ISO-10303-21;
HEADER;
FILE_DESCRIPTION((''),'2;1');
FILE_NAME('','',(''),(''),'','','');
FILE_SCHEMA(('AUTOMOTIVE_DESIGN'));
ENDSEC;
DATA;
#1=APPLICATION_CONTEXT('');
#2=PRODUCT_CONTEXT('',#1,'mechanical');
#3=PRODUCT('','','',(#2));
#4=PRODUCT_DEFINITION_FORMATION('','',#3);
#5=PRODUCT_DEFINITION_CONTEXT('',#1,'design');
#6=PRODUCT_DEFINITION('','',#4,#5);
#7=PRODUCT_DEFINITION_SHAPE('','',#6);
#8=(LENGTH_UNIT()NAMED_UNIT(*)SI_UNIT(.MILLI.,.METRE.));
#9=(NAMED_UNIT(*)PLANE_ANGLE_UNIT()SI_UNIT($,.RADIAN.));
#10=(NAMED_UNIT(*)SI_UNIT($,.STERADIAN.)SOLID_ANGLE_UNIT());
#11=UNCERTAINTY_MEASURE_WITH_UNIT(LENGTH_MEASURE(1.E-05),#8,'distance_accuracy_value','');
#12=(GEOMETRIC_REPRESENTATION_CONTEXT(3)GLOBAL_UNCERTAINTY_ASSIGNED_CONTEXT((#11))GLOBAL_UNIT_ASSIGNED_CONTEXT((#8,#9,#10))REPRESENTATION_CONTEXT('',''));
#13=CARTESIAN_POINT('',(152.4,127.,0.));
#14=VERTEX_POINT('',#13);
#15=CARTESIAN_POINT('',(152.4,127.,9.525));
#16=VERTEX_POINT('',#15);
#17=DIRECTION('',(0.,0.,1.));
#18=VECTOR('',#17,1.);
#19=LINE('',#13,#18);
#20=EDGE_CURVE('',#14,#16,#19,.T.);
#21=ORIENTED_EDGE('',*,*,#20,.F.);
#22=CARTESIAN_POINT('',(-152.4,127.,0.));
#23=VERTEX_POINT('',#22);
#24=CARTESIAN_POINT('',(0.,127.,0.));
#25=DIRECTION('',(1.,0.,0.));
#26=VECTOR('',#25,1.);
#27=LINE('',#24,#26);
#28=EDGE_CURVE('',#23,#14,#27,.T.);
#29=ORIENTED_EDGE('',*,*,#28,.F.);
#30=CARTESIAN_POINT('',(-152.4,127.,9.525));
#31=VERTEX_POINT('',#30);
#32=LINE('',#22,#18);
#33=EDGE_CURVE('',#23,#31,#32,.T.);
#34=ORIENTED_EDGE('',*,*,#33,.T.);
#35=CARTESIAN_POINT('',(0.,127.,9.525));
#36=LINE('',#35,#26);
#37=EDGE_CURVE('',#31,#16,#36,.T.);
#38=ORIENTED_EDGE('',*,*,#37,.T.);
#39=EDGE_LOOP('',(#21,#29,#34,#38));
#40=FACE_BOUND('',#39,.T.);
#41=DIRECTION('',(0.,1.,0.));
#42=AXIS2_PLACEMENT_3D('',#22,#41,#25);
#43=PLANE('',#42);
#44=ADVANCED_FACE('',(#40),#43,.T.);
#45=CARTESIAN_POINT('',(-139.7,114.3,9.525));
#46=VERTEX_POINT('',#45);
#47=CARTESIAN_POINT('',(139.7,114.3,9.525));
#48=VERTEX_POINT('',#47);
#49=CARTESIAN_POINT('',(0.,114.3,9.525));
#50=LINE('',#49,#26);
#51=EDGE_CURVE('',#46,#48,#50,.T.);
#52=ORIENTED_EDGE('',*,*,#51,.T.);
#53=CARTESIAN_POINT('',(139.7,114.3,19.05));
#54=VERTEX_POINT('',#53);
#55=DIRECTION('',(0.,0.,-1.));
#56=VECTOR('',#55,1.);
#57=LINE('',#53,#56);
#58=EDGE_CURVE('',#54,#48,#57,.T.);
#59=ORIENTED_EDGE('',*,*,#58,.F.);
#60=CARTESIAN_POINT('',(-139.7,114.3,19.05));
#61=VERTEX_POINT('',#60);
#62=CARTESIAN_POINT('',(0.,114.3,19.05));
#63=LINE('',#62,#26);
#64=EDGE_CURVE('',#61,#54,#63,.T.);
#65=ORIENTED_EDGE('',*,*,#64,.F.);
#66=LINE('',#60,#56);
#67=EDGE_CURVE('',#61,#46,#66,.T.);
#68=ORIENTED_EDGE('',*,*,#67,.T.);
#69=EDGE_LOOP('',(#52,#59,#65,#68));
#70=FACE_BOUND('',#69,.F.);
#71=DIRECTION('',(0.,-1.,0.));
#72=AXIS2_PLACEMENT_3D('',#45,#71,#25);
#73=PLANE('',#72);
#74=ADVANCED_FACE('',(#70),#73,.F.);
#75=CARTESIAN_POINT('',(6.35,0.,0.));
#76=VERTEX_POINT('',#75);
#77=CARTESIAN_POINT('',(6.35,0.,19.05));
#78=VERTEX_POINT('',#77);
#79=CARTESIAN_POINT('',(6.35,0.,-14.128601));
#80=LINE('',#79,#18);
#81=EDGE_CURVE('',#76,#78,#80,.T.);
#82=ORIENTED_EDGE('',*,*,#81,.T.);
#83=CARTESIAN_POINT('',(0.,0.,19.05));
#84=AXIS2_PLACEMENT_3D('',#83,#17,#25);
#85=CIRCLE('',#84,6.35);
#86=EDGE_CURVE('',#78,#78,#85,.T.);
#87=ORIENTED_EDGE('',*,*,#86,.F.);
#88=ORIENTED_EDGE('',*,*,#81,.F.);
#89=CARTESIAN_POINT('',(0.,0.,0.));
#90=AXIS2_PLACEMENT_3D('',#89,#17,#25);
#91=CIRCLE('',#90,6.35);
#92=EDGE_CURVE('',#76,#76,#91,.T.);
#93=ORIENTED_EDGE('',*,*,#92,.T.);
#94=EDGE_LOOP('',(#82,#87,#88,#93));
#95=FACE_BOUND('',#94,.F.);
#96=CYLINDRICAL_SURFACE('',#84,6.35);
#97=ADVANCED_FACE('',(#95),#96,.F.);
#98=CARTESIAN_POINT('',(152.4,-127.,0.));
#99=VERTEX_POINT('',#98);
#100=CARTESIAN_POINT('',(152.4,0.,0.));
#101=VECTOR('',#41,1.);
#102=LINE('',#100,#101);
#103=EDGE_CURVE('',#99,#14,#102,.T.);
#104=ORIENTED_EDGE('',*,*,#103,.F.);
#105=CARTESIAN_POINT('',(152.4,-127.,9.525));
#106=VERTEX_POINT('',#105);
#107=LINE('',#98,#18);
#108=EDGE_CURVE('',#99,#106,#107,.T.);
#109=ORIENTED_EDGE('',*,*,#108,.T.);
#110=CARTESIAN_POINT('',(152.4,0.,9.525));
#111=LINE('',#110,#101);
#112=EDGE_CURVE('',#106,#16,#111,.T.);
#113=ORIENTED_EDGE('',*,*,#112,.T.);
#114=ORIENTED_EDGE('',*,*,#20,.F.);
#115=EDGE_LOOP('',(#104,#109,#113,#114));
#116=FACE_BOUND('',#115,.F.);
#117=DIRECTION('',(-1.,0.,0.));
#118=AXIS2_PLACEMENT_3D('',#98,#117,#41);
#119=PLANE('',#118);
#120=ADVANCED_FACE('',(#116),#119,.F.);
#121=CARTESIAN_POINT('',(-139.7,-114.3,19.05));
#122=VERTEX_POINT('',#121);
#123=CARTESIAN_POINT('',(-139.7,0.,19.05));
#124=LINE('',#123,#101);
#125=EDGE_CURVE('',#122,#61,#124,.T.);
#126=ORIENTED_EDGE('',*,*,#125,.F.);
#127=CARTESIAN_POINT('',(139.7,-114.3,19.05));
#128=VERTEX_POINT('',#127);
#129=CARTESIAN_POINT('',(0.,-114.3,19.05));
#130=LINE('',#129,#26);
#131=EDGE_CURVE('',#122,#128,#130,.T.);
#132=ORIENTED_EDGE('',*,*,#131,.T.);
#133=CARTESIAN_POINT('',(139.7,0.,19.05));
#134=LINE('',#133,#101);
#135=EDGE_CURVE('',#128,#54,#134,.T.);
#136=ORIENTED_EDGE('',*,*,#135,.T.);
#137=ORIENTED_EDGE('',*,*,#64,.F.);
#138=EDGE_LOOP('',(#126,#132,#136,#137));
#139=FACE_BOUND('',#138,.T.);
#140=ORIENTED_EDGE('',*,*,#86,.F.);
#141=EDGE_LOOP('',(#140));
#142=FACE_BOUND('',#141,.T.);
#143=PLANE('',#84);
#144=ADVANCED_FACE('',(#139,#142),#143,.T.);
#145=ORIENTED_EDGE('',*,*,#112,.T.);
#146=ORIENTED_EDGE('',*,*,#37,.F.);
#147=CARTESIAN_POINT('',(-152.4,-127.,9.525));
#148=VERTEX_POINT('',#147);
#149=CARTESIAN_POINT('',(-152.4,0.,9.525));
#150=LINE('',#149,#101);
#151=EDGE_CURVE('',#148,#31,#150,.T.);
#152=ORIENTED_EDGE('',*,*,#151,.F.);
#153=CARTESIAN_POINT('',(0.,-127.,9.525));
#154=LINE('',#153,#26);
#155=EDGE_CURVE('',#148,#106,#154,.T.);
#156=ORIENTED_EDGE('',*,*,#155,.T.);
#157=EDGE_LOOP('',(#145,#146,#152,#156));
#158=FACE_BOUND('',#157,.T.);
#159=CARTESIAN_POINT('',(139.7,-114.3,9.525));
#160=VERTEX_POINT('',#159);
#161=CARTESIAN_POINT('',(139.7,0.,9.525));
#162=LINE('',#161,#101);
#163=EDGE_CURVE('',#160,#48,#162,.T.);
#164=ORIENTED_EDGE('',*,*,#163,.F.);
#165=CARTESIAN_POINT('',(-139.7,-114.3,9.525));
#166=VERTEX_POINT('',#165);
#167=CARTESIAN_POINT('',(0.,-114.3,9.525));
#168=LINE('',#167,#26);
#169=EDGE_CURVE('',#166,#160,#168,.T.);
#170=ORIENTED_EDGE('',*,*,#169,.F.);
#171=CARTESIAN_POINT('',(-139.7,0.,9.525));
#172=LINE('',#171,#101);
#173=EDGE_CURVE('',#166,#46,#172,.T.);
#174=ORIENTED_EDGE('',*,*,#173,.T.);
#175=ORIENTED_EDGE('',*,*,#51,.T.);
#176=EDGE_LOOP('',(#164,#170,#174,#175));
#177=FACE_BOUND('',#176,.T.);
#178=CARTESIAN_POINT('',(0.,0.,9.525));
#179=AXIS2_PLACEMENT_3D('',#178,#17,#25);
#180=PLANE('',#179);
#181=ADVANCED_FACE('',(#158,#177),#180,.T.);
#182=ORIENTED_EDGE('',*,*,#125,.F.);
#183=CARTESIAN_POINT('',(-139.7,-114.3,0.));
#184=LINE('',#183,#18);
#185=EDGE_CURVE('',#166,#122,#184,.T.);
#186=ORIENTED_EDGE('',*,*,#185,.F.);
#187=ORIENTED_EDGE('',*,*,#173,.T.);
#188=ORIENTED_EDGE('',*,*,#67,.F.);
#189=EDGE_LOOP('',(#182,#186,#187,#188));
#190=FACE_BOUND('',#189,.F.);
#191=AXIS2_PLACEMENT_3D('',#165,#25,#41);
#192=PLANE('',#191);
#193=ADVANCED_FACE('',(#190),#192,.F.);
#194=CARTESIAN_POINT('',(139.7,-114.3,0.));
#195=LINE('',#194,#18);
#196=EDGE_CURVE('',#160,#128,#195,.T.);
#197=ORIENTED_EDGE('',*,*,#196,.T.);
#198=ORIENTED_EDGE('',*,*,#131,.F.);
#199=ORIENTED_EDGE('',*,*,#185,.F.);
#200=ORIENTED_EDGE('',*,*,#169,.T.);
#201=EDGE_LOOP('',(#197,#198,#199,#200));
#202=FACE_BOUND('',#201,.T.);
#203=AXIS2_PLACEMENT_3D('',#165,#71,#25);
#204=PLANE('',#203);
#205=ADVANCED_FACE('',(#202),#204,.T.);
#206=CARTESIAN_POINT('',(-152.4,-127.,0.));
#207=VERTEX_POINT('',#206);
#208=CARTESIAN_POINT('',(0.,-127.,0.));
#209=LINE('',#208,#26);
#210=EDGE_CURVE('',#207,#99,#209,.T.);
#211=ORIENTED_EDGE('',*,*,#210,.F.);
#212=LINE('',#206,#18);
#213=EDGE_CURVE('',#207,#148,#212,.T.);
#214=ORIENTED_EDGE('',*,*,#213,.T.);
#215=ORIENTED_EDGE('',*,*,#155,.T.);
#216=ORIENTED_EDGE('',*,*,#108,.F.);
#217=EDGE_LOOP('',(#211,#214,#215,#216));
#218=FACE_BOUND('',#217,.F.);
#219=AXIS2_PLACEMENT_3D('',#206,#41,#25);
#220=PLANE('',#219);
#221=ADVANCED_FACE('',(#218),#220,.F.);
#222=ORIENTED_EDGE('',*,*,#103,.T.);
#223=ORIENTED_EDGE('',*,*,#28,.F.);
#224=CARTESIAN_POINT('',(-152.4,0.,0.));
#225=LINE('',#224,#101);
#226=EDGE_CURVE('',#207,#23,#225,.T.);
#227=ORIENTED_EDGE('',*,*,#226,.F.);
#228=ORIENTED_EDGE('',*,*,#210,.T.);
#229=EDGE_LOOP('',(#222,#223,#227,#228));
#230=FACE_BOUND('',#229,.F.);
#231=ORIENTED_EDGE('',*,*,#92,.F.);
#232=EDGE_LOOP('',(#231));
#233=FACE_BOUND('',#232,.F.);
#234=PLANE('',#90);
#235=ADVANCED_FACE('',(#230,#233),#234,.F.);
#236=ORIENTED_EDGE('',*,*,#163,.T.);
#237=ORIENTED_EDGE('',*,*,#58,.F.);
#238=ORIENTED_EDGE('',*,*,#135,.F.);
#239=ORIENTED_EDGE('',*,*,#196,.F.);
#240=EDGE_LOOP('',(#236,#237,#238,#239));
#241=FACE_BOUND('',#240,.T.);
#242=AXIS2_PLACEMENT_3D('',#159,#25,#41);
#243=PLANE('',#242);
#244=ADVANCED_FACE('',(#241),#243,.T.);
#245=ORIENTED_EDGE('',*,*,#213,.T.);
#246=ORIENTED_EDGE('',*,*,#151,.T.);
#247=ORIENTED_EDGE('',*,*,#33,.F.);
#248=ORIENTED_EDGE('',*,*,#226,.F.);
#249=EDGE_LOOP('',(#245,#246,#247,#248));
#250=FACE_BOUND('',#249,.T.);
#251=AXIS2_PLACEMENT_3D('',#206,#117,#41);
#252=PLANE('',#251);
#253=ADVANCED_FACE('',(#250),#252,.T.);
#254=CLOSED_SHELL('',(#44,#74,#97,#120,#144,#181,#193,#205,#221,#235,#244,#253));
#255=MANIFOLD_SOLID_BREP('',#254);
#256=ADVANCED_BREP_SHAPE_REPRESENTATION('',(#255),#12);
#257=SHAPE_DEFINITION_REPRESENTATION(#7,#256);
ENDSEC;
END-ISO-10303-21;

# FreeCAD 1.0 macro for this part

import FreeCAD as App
import Part
import Sketcher
from FreeCAD import Vector
Q = App.Units.Quantity

doc = App.newDocument("Part")
body = doc.addObject("PartDesign::Body", "Body")

sketch1 = body.newObject("Sketcher::SketchObject", "Sketch")
sketch1.AttachmentSupport = (doc.getObject("XY_Plane"), [""])
sketch1.MapMode = "FlatFace"
sketch1.addGeometry([
    Part.LineSegment(Vector(-152, 127, 0), Vector(-152, -127, 0)),
    Part.LineSegment(Vector(-152, -127, 0), Vector(152, -127, 0)),
    Part.LineSegment(Vector(152, -127, 0), Vector(152, 127, 0)),
    Part.LineSegment(Vector(152, 127, 0), Vector(-152, 127, 0)),
    Part.LineSegment(Vector(140, -114, 0), Vector(-140, -114, 0)),
    Part.LineSegment(Vector(-140, -114, 0), Vector(-140, 114, 0)),
    Part.LineSegment(Vector(-140, 114, 0), Vector(140, 114, 0)),
    Part.LineSegment(Vector(140, 114, 0), Vector(140, -114, 0)),
], False)
sketch1.addConstraint([
    Sketcher.Constraint("Coincident", 0, 2, 1, 1),
    Sketcher.Constraint("Coincident", 1, 2, 2, 1),
    Sketcher.Constraint("Coincident", 2, 2, 3, 1),
    Sketcher.Constraint("Coincident", 3, 2, 0, 1),
    Sketcher.Constraint("Coincident", 4, 2, 5, 1),
    Sketcher.Constraint("Coincident", 5, 2, 6, 1),
    Sketcher.Constraint("Coincident", 6, 2, 7, 1),
    Sketcher.Constraint("Coincident", 7, 2, 4, 1),
    Sketcher.Constraint("Vertical", 0),
    Sketcher.Constraint("Horizontal", 1),
    Sketcher.Constraint("Vertical", 2),
    Sketcher.Constraint("Horizontal", 3),
    Sketcher.Constraint("Horizontal", 4),
    Sketcher.Constraint("Vertical", 5),
    Sketcher.Constraint("Horizontal", 6),
    Sketcher.Constraint("Vertical", 7),
    Sketcher.Constraint("Symmetric", 0, 2, 2, 2, -1, 1),
    Sketcher.Constraint("Symmetric", 4, 2, 6, 2, -1, 1),
    Sketcher.Constraint("DistanceX", 1, 1, 1, 2, Q("12 in")),
    Sketcher.Constraint("DistanceX", 4, 2, 4, 1, Q("11 in")),
    Sketcher.Constraint("DistanceY", 0, 2, 0, 1, Q("10 in")),
    Sketcher.Constraint("DistanceY", 5, 1, 5, 2, Q("9 in")),
])
pad1 = body.newObject("PartDesign::Pad", "Pad")
pad1.Profile = sketch1
pad1.Length = Q("0.375 in")

sketch2 = body.newObject("Sketcher::SketchObject", "Sketch001")
sketch2.AttachmentSupport = (doc.getObject("XY_Plane"), [""])
sketch2.MapMode = "FlatFace"
sketch2.AttachmentOffset = App.Placement(Vector(0, 0, 0.375 * 25.4), App.Rotation())
sketch2.addGeometry([
    Part.LineSegment(Vector(-140, 114, 0), Vector(-140, -114, 0)),
    Part.LineSegment(Vector(-140, -114, 0), Vector(140, -114, 0)),
    Part.LineSegment(Vector(140, -114, 0), Vector(140, 114, 0)),
    Part.LineSegment(Vector(140, 114, 0), Vector(-140, 114, 0)),
], False)
sketch2.addConstraint([
    Sketcher.Constraint("Coincident", 0, 2, 1, 1),
    Sketcher.Constraint("Coincident", 1, 2, 2, 1),
    Sketcher.Constraint("Coincident", 2, 2, 3, 1),
    Sketcher.Constraint("Coincident", 3, 2, 0, 1),
    Sketcher.Constraint("Vertical", 0),
    Sketcher.Constraint("Horizontal", 1),
    Sketcher.Constraint("Vertical", 2),
    Sketcher.Constraint("Horizontal", 3),
    Sketcher.Constraint("Symmetric", 0, 2, 2, 2, -1, 1),
    Sketcher.Constraint("DistanceX", 1, 1, 1, 2, Q("11 in")),
    Sketcher.Constraint("DistanceY", 0, 2, 0, 1, Q("9 in")),
])
pad2 = body.newObject("PartDesign::Pad", "Pad001")
pad2.Profile = sketch2
pad2.Length = Q("0.75 in")
pad2.Midplane = True

sketch3 = body.newObject("Sketcher::SketchObject", "Sketch002")
sketch3.AttachmentSupport = (doc.getObject("XY_Plane"), [""])
sketch3.MapMode = "FlatFace"
sketch3.AttachmentOffset = App.Placement(Vector(0, 0, 0.75 * 25.4), App.Rotation())
sketch3.addGeometry(Part.Circle(Vector(0, 0, 0), Vector(0, 0, 1), 6), False)
sketch3.addConstraint([
    Sketcher.Constraint("Coincident", 0, 3, -1, 1),
    Sketcher.Constraint("Diameter", 0, Q("0.5 in")),
])
pocket1 = body.newObject("PartDesign::Pocket", "Pocket")
pocket1.Profile = sketch3
pocket1.Length = 66.357202
pocket1.Midplane = True

doc.recompute()
